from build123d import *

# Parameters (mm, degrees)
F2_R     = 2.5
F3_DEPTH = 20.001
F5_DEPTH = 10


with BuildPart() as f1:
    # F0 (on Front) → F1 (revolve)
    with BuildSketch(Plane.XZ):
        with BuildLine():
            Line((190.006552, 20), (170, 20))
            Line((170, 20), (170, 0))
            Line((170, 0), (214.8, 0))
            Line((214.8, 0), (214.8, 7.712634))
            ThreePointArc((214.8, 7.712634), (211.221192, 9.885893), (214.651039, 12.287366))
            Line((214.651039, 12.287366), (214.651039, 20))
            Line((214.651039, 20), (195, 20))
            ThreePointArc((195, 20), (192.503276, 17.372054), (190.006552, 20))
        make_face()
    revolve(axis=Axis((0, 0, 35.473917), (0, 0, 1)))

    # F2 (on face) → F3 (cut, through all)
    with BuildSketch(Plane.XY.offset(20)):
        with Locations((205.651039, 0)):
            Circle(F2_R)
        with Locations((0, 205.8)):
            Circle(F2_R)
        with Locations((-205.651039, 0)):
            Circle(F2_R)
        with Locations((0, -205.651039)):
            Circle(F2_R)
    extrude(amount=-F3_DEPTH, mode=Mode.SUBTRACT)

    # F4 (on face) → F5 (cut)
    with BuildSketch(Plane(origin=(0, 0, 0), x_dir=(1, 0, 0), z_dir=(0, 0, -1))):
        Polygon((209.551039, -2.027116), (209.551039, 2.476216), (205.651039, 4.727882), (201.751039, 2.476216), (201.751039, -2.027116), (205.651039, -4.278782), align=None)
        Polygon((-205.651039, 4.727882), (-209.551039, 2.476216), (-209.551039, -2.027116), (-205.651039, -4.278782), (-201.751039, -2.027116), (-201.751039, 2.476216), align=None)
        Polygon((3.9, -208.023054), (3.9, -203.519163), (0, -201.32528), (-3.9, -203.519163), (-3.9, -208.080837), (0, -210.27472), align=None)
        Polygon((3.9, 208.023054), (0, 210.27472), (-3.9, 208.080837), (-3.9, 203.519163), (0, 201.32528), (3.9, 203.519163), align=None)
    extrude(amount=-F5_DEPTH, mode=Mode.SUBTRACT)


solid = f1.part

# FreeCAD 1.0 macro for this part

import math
import FreeCAD as App
import Part
import Sketcher
Q = App.Units.Quantity

doc = App.newDocument("Part")
body = doc.addObject("PartDesign::Body", "Body")

# Sketch on XZ plane
sketch1 = body.newObject("Sketcher::SketchObject", "Sketch")
sketch1.AttachmentSupport = (doc.getObject("XZ_Plane"), [""])
sketch1.MapMode = "FlatFace"
sketch1.addGeometry([
    Part.LineSegment(App.Vector(190.006552, 20, 0), App.Vector(170, 20, 0)),  # 0
    Part.LineSegment(App.Vector(170, 20, 0), App.Vector(170, 0, 0)),  # 1
    Part.LineSegment(App.Vector(170, 0, 0), App.Vector(214.8, 0, 0)),  # 2
    Part.LineSegment(App.Vector(214.8, 0, 0), App.Vector(214.8, 7.712634, 0)),  # 3
    Part.ArcOfCircle(Part.Circle(App.Vector(213.719867, 9.967254, 0), App.Vector(0, 0, 1), 2.5), math.radians(68.132054), math.radians(295.597922)),  # 4
    Part.LineSegment(App.Vector(214.651039, 12.287366, 0), App.Vector(214.651039, 20, 0)),  # 5
    Part.LineSegment(App.Vector(214.651039, 20, 0), App.Vector(195, 20, 0)),  # 6
    Part.ArcOfCircle(Part.Circle(App.Vector(192.503276, 19.872054, 0), App.Vector(0, 0, 1), 2.5), math.radians(177.066416), math.radians(362.933584)),  # 7
], False)
sketch1.addConstraint([
    Sketcher.Constraint("Coincident", 0, 2, 1, 1),
    Sketcher.Constraint("Coincident", 1, 2, 2, 1),
    Sketcher.Constraint("Coincident", 2, 2, 3, 1),
    Sketcher.Constraint("Coincident", 3, 2, 4, 2),
    Sketcher.Constraint("Coincident", 4, 1, 5, 1),
    Sketcher.Constraint("Coincident", 5, 2, 6, 1),
    Sketcher.Constraint("Coincident", 6, 2, 7, 2),
    Sketcher.Constraint("Coincident", 7, 1, 0, 1),
    Sketcher.Constraint("Horizontal", 0),
    Sketcher.Constraint("Vertical", 1),
    Sketcher.Constraint("Horizontal", 2),
    Sketcher.Constraint("Vertical", 3),
    Sketcher.Constraint("Vertical", 5),
    Sketcher.Constraint("Horizontal", 6),
    Sketcher.Constraint("PointOnObject", 1, 2, -1),
    Sketcher.Constraint("Radius", 4, Q("2.5 mm")),
    Sketcher.Constraint("Radius", 7, Q("2.5 mm")),
    Sketcher.Constraint("DistanceY", 1, 2, 1, 1, Q("20 mm")),
    Sketcher.Constraint("DistanceX", 2, 1, 2, 2, Q("44.8 mm")),
    Sketcher.Constraint("DistanceX", -1, 1, 0, 2, Q("170 mm")),
    Sketcher.Constraint("DistanceY", -1, 1, 5, 2, Q("20 mm")),
    Sketcher.Constraint("DistanceX", -1, 1, 6, 2, Q("195 mm")),
    Sketcher.Constraint("DistanceX", 0, 2, 0, 1, Q("20.006552 mm")),
    Sketcher.Constraint("DistanceX", 6, 2, 6, 1, Q("19.651039 mm")),
    Sketcher.Constraint("DistanceY", 4, 3, 7, 3, Q("9.9048 mm")),
    Sketcher.Constraint("DistanceY", 3, 1, 3, 2, Q("7.712634 mm")),
])
revolution = body.newObject("PartDesign::Revolution", "Revolution")
revolution.Profile = sketch1
revolution.ReferenceAxis = (sketch1, ["V_Axis"])
revolution.Angle = 360

# Sketch on XY plane
sketch2 = body.newObject("Sketcher::SketchObject", "Sketch001")
sketch2.AttachmentSupport = (doc.getObject("XY_Plane"), [""])
sketch2.MapMode = "FlatFace"
sketch2.AttachmentOffset = App.Placement(App.Vector(0, 0, 20), App.Rotation())
sketch2.addGeometry([
    Part.Circle(App.Vector(205.651039, 0, 0), App.Vector(0, 0, 1), 2.5),
    Part.Circle(App.Vector(0, 205.8, 0), App.Vector(0, 0, 1), 2.5),
    Part.Circle(App.Vector(-205.651039, 0, 0), App.Vector(0, 0, 1), 2.5),
    Part.Circle(App.Vector(0, -205.651039, 0), App.Vector(0, 0, 1), 2.5),
], False)
sketch2.addConstraint([
    Sketcher.Constraint("Equal", 0, 1),
    Sketcher.Constraint("Equal", 1, 2),
    Sketcher.Constraint("Equal", 2, 3),
    Sketcher.Constraint("Symmetric", 0, 3, 2, 3, -1, 1),
    Sketcher.Constraint("PointOnObject", 0, 3, -1),
    Sketcher.Constraint("PointOnObject", 1, 3, -2),
    Sketcher.Constraint("PointOnObject", 3, 3, -2),
    Sketcher.Constraint("Diameter", 0, Q("5 mm")),
    Sketcher.Constraint("DistanceY", -1, 1, 1, 3, Q("205.8 mm")),
    Sketcher.Constraint("DistanceX", -1, 1, 0, 3, Q("205.651039 mm")),
    Sketcher.Constraint("DistanceY", 3, 3, -1, 1, Q("205.651039 mm")),
])
pocket1 = body.newObject("PartDesign::Pocket", "Pocket")
pocket1.Profile = sketch2
pocket1.Type = "ThroughAll"

# Sketch on XY plane
sketch3 = body.newObject("Sketcher::SketchObject", "Sketch002")
sketch3.AttachmentSupport = (doc.getObject("XY_Plane"), [""])
sketch3.MapMode = "FlatFace"
sketch3.addGeometry([
    Part.LineSegment(App.Vector(209.551039, 2.027116, 0), App.Vector(209.551039, -2.476216, 0)),  # 0
    Part.LineSegment(App.Vector(209.551039, -2.476216, 0), App.Vector(205.651039, -4.727882, 0)),  # 1
    Part.LineSegment(App.Vector(205.651039, -4.727882, 0), App.Vector(201.751039, -2.476216, 0)),  # 2
    Part.LineSegment(App.Vector(201.751039, -2.476216, 0), App.Vector(201.751039, 2.027116, 0)),  # 3
    Part.LineSegment(App.Vector(201.751039, 2.027116, 0), App.Vector(205.651039, 4.278782, 0)),  # 4
    Part.LineSegment(App.Vector(205.651039, 4.278782, 0), App.Vector(209.551039, 2.027116, 0)),  # 5
    Part.LineSegment(App.Vector(-205.651039, -4.727882, 0), App.Vector(-209.551039, -2.476216, 0)),  # 6
    Part.LineSegment(App.Vector(-209.551039, -2.476216, 0), App.Vector(-209.551039, 2.027116, 0)),  # 7
    Part.LineSegment(App.Vector(-209.551039, 2.027116, 0), App.Vector(-205.651039, 4.278782, 0)),  # 8
    Part.LineSegment(App.Vector(-205.651039, 4.278782, 0), App.Vector(-201.751039, 2.027116, 0)),  # 9
    Part.LineSegment(App.Vector(-201.751039, 2.027116, 0), App.Vector(-201.751039, -2.476216, 0)),  # 10
    Part.LineSegment(App.Vector(-201.751039, -2.476216, 0), App.Vector(-205.651039, -4.727882, 0)),  # 11
    Part.LineSegment(App.Vector(3.9, 208.023054, 0), App.Vector(3.9, 203.519163, 0)),  # 12
    Part.LineSegment(App.Vector(3.9, 203.519163, 0), App.Vector(0, 201.32528, 0)),  # 13
    Part.LineSegment(App.Vector(0, 201.32528, 0), App.Vector(-3.9, 203.519163, 0)),  # 14
    Part.LineSegment(App.Vector(-3.9, 203.519163, 0), App.Vector(-3.9, 208.080837, 0)),  # 15
    Part.LineSegment(App.Vector(-3.9, 208.080837, 0), App.Vector(0, 210.27472, 0)),  # 16
    Part.LineSegment(App.Vector(0, 210.27472, 0), App.Vector(3.9, 208.023054, 0)),  # 17
    Part.LineSegment(App.Vector(3.9, -208.023054, 0), App.Vector(0, -210.27472, 0)),  # 18
    Part.LineSegment(App.Vector(0, -210.27472, 0), App.Vector(-3.9, -208.080837, 0)),  # 19
    Part.LineSegment(App.Vector(-3.9, -208.080837, 0), App.Vector(-3.9, -203.519163, 0)),  # 20
    Part.LineSegment(App.Vector(-3.9, -203.519163, 0), App.Vector(0, -201.32528, 0)),  # 21
    Part.LineSegment(App.Vector(0, -201.32528, 0), App.Vector(3.9, -203.519163, 0)),  # 22
    Part.LineSegment(App.Vector(3.9, -203.519163, 0), App.Vector(3.9, -208.023054, 0)),  # 23
], False)
sketch3.addConstraint([
    Sketcher.Constraint("Coincident", 0, 2, 1, 1),
    Sketcher.Constraint("Coincident", 1, 2, 2, 1),
    Sketcher.Constraint("Coincident", 2, 2, 3, 1),
    Sketcher.Constraint("Coincident", 3, 2, 4, 1),
    Sketcher.Constraint("Coincident", 4, 2, 5, 1),
    Sketcher.Constraint("Coincident", 5, 2, 0, 1),
    Sketcher.Constraint("Coincident", 6, 2, 7, 1),
    Sketcher.Constraint("Coincident", 7, 2, 8, 1),
    Sketcher.Constraint("Coincident", 8, 2, 9, 1),
    Sketcher.Constraint("Coincident", 9, 2, 10, 1),
    Sketcher.Constraint("Coincident", 10, 2, 11, 1),
    Sketcher.Constraint("Coincident", 11, 2, 6, 1),
    Sketcher.Constraint("Coincident", 12, 2, 13, 1),
    Sketcher.Constraint("Coincident", 13, 2, 14, 1),
    Sketcher.Constraint("Coincident", 14, 2, 15, 1),
    Sketcher.Constraint("Coincident", 15, 2, 16, 1),
    Sketcher.Constraint("Coincident", 16, 2, 17, 1),
    Sketcher.Constraint("Coincident", 17, 2, 12, 1),
    Sketcher.Constraint("Coincident", 18, 2, 19, 1),
    Sketcher.Constraint("Coincident", 19, 2, 20, 1),
    Sketcher.Constraint("Coincident", 20, 2, 21, 1),
    Sketcher.Constraint("Coincident", 21, 2, 22, 1),
    Sketcher.Constraint("Coincident", 22, 2, 23, 1),
    Sketcher.Constraint("Coincident", 23, 2, 18, 1),
    Sketcher.Constraint("Vertical", 0),
    Sketcher.Constraint("Vertical", 3),
    Sketcher.Constraint("Vertical", 7),
    Sketcher.Constraint("Vertical", 10),
    Sketcher.Constraint("Vertical", 12),
    Sketcher.Constraint("Vertical", 15),
    Sketcher.Constraint("Vertical", 20),
    Sketcher.Constraint("Vertical", 23),
    Sketcher.Constraint("Symmetric", 16, 2, 18, 2, -1, 1),
    Sketcher.Constraint("Symmetric", 12, 2, 20, 2, -1, 1),
    Sketcher.Constraint("Symmetric", 13, 2, 21, 2, -1, 1),
    Sketcher.Constraint("Symmetric", 14, 2, 22, 2, -1, 1),
    Sketcher.Constraint("Symmetric", 0, 2, 6, 2, -2),
    Sketcher.Constraint("Symmetric", 4, 2, 8, 2, -2),
    Sketcher.Constraint("Symmetric", 3, 2, 9, 2, -2),
    Sketcher.Constraint("Symmetric", 1, 2, 11, 2, -2),
    Sketcher.Constraint("Symmetric", 12, 2, 14, 2, -2),
    Sketcher.Constraint("PointOnObject", 13, 2, -2),
    Sketcher.Constraint("PointOnObject", 16, 2, -2),
    Sketcher.Constraint("Parallel", 1, 4),
    Sketcher.Constraint("Parallel", 2, 5),
    Sketcher.Constraint("Parallel", 5, 6),
    Sketcher.Constraint("Parallel", 4, 8),
    Sketcher.Constraint("Parallel", 8, 11),
    Sketcher.Constraint("Parallel", 13, 16),
    Sketcher.Constraint("Parallel", 9, 17),
    Sketcher.Constraint("Parallel", 11, 18),
    Sketcher.Constraint("Parallel", 14, 19),
    Sketcher.Constraint("Horizontal", 0, 2, 2, 2),
    Sketcher.Constraint("Horizontal", 3, 2, 5, 2),
    Sketcher.Constraint("Equal", 11, 17),
    Sketcher.Constraint("Angle", 1, Q("-150.000001 deg")),
    Sketcher.Constraint("DistanceX", -1, 1, 12, 2, Q("3.9 mm")),
    Sketcher.Constraint("DistanceY", 1, 2, 3, 2, Q("6.754998 mm")),
    Sketcher.Constraint("DistanceY", 12, 2, 12, 1, Q("4.503891 mm")),
    Sketcher.Constraint("Distance", 13, Q("4.47472 mm")),
    Sketcher.Constraint("DistanceX", -1, 1, 0, 2, Q("209.551039 mm")),
    Sketcher.Constraint("DistanceY", -1, 1, 4, 2, Q("4.278782 mm")),
    Sketcher.Constraint("DistanceY", -1, 1, 13, 2, Q("201.32528 mm")),
])
pocket2 = body.newObject("PartDesign::Pocket", "Pocket001")
pocket2.Profile = sketch3
pocket2.Length = 10
pocket2.Reversed = True

doc.recompute()
